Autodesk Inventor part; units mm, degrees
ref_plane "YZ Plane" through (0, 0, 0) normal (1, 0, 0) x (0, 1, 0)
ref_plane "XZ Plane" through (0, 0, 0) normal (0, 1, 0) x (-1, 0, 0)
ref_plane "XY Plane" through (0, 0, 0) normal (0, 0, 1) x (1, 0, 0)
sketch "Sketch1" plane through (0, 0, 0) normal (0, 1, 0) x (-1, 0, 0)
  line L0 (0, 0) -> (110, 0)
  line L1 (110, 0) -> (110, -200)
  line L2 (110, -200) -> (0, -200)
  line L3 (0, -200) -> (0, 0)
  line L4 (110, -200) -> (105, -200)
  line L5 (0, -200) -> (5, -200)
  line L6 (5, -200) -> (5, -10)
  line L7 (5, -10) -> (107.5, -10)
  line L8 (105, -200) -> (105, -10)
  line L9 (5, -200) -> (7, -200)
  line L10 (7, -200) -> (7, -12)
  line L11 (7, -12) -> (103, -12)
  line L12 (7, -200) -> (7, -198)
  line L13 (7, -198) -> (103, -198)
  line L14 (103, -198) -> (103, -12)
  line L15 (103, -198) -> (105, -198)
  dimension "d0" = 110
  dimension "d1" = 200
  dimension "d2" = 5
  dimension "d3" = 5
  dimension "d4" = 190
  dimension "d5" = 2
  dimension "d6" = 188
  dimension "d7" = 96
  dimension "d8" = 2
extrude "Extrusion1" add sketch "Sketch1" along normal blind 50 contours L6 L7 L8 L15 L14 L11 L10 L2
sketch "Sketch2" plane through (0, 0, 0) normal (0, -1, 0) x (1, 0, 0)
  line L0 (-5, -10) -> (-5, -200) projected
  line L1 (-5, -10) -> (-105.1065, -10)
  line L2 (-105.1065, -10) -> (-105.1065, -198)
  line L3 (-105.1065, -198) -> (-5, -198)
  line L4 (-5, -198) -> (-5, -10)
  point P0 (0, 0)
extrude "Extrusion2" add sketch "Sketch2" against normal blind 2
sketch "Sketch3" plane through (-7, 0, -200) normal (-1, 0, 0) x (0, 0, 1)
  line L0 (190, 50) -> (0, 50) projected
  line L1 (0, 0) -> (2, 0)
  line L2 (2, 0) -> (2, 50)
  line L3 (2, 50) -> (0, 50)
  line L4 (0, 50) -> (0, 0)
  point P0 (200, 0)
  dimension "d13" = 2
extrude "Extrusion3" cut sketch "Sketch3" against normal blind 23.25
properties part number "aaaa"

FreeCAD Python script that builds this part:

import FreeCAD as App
import Part
import Sketcher
from FreeCAD import Vector


def add_polygon(sketch, points):
    """Adds a closed chain of lines whose ends are joined by coincident constraints."""
    first, n = sketch.GeometryCount, len(points)
    for a, b in zip(points, points[1:] + points[:1]):
        sketch.addGeometry(Part.LineSegment(App.Vector(*a, 0), App.Vector(*b, 0)), False)
    for i in range(n):
        sketch.addConstraint(Sketcher.Constraint("Coincident", first + i, 2, first + (i + 1) % n, 1))

doc = App.newDocument("Part")
body = doc.addObject("PartDesign::Body", "Body")

# Sketch on XZ plane
sketch1 = doc.addObject("Sketcher::SketchObject", "Sketch")
body.addObject(sketch1)
sketch1.AttachmentSupport = (doc.XZ_Plane, [""])
sketch1.MapMode = "FlatFace"
add_polygon(sketch1, [(-5, -10), (-5, -200), (-7, -200), (-7, -12), (-103, -12), (-103, -198), (-105, -198), (-105, -10)])  # lines 0-7
sketch1.addConstraint([
    Sketcher.Constraint("Vertical", 0),
    Sketcher.Constraint("Horizontal", 1),
    Sketcher.Constraint("Vertical", 2),
    Sketcher.Constraint("Horizontal", 3),
    Sketcher.Constraint("Vertical", 4),
    Sketcher.Constraint("Horizontal", 5),
    Sketcher.Constraint("Vertical", 6),
    Sketcher.Constraint("Horizontal", 7),
    Sketcher.Constraint("Equal", 1, 5),
    Sketcher.Constraint("Equal", 2, 6),
    Sketcher.Constraint("DistanceX", 1, 2, 1, 1, 2.0),
    Sketcher.Constraint("DistanceX", 3, 2, 3, 1, 96.0),
    Sketcher.Constraint("DistanceY", 0, 2, 0, 1, 190.0),
    Sketcher.Constraint("DistanceY", 2, 1, 2, 2, 188.0),
    Sketcher.Constraint("DistanceX", 0, 2, -1, 1, 5.0),
    Sketcher.Constraint("DistanceY", 0, 2, -1, 1, 200.0),
])
pad1 = doc.addObject("PartDesign::Pad", "Pad")
body.addObject(pad1)
pad1.Profile = sketch1
pad1.Length = 50
pad1.Reversed = True

# Sketch on XZ plane
sketch2 = doc.addObject("Sketcher::SketchObject", "Sketch001")
body.addObject(sketch2)
sketch2.AttachmentSupport = (doc.XZ_Plane, [""])
sketch2.MapMode = "FlatFace"
add_polygon(sketch2, [(-5, -198), (-5, -10), (-105, -10), (-105, -198)])  # lines 0-3
sketch2.addConstraint([
    Sketcher.Constraint("Vertical", 0),
    Sketcher.Constraint("Horizontal", 1),
    Sketcher.Constraint("Vertical", 2),
    Sketcher.Constraint("Horizontal", 3),
    Sketcher.Constraint("DistanceY", 0, 1, 0, 2, 188.0),
    Sketcher.Constraint("DistanceX", 0, 2, -1, 1, 5.0),
    Sketcher.Constraint("DistanceY", 0, 2, -1, 1, 10.0),
    Sketcher.Constraint("DistanceX", 1, 2, 1, 1, 100.1065),
])
pad2 = doc.addObject("PartDesign::Pad", "Pad001")
body.addObject(pad2)
pad2.Profile = sketch2
pad2.Length = 2
pad2.Reversed = True

# Sketch on YZ plane
sketch3 = doc.addObject("Sketcher::SketchObject", "Sketch002")
body.addObject(sketch3)
sketch3.AttachmentSupport = (doc.YZ_Plane, [""])
sketch3.MapMode = "FlatFace"
sketch3.AttachmentOffset = App.Placement(Vector(0, 0, -7), App.Rotation())
add_polygon(sketch3, [(0, -198), (50, -198), (50, -200), (0, -200)])  # lines 0-3
sketch3.addConstraint([
    Sketcher.Constraint("Horizontal", 0),
    Sketcher.Constraint("Vertical", 1),
    Sketcher.Constraint("Horizontal", 2),
    Sketcher.Constraint("Vertical", 3),
    Sketcher.Constraint("PointOnObject", 2, 2, -2),
    Sketcher.Constraint("DistanceY", 1, 2, 1, 1, 2.0),
    Sketcher.Constraint("DistanceX", 0, 1, 0, 2, 50.0),
    Sketcher.Constraint("DistanceY", 0, 2, -1, 1, 198.0),
])
pocket1 = doc.addObject("PartDesign::Pocket", "Pocket")
body.addObject(pocket1)
pocket1.Profile = sketch3
pocket1.Length = 23.25
pocket1.Reversed = True

doc.recompute()
